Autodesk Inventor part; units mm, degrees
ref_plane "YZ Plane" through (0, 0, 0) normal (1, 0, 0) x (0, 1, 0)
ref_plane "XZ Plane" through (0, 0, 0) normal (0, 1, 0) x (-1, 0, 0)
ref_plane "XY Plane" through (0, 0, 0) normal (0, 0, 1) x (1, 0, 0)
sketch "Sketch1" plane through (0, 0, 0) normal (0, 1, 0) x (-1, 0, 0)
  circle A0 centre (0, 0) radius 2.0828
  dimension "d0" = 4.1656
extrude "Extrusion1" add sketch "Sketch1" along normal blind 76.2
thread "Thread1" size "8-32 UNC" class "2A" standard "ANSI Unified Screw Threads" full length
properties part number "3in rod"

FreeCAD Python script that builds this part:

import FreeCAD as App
import Part
import Sketcher
Q = App.Units.Quantity

doc = App.newDocument("Part")
body = doc.addObject("PartDesign::Body", "Body")

sketch1 = doc.addObject("Sketcher::SketchObject", "Sketch")
body.addObject(sketch1)
sketch1.AttachmentSupport = (doc.XZ_Plane, [""])
sketch1.MapMode = "FlatFace"
sketch1.addGeometry(Part.Circle(App.Vector(0, 0, 0), App.Vector(0, 0, 1), 2.0828), False)
sketch1.addConstraint(Sketcher.Constraint("Coincident", 0, 3, -1, 1))
sketch1.addConstraint(Sketcher.Constraint("Diameter", 0, Q("0.164 in")))
pad1 = doc.addObject("PartDesign::Pad", "Pad")
body.addObject(pad1)
pad1.Profile = sketch1
pad1.Length = Q("3 in")
pad1.Reversed = True

doc.recompute()
